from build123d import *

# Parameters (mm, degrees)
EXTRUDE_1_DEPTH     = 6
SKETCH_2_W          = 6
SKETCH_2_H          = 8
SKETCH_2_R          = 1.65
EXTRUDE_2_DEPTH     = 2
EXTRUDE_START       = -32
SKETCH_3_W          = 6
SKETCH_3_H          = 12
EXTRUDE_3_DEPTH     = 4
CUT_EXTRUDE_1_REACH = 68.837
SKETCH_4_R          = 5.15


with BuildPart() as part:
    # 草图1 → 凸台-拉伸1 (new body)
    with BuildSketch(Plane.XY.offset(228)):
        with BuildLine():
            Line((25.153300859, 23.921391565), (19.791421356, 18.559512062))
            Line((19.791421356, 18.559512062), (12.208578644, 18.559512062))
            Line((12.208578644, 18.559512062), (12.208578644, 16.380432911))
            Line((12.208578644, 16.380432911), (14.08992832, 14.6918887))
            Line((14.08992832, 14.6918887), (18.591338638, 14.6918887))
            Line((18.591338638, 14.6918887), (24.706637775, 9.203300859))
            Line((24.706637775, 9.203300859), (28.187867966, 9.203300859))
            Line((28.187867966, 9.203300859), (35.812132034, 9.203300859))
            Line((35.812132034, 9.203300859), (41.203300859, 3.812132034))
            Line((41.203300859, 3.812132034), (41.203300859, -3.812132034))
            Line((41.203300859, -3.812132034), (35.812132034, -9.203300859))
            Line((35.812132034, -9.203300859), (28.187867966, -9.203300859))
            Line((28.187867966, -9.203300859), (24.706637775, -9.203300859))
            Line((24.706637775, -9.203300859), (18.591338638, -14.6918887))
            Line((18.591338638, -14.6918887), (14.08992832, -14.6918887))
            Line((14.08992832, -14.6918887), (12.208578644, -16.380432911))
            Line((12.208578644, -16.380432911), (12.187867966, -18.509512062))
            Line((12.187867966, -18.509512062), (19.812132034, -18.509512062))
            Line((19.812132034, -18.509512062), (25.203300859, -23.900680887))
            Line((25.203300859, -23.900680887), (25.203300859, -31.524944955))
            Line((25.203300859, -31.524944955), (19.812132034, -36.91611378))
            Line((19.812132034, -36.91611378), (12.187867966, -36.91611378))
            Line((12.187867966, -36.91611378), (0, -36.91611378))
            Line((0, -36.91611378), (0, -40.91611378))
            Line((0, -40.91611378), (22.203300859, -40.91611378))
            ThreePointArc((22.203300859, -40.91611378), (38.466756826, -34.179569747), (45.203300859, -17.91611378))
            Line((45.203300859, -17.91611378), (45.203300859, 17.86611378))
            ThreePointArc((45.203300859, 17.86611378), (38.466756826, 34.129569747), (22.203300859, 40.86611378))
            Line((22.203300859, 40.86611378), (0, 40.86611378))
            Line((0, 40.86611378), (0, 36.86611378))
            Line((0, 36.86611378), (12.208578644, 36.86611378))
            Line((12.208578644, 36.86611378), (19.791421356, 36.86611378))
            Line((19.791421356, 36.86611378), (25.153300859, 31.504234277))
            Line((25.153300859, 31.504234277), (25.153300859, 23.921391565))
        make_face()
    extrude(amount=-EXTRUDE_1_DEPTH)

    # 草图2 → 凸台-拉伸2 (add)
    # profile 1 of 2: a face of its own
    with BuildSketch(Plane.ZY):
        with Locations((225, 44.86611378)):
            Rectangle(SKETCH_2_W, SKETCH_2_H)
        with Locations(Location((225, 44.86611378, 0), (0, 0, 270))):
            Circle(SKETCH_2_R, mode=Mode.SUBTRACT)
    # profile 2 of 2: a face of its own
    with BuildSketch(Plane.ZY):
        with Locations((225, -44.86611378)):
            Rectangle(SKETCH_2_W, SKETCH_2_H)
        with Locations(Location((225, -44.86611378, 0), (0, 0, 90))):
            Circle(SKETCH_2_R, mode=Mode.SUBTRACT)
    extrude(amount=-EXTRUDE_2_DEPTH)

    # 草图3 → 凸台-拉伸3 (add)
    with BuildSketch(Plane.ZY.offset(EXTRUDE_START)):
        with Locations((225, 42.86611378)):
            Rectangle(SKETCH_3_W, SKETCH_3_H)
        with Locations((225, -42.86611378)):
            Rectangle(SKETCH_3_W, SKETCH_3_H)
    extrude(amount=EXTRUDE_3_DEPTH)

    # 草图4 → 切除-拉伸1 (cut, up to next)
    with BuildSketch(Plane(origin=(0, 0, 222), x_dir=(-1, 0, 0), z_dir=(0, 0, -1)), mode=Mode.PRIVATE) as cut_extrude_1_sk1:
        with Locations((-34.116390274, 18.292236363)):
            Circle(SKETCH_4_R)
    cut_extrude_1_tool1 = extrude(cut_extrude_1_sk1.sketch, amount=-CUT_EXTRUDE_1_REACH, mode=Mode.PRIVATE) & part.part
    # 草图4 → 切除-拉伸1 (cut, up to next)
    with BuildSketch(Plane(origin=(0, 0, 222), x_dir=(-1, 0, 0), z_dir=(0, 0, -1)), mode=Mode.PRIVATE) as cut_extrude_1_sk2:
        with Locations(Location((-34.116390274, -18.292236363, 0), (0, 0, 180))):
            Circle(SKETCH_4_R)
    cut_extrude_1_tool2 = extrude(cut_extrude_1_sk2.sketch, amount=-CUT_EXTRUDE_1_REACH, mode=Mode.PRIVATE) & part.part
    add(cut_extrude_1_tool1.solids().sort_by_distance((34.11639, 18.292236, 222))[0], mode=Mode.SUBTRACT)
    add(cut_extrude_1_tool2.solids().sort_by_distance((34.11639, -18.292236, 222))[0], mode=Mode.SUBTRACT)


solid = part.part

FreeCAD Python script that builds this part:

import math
import FreeCAD as App
import Part
import Sketcher

V = App.Vector

doc = App.newDocument("Part")
body = doc.addObject("PartDesign::Body", "Body")

sketch1 = body.newObject("Sketcher::SketchObject", "Sketch")
sketch1.AttachmentSupport = (doc.getObject("XY_Plane"), [""])
sketch1.MapMode = "FlatFace"
sketch1.AttachmentOffset = App.Placement(V(0, 0, 228), App.Rotation())
sketch1.addGeometry(Part.LineSegment(V(25.2, 23.9, 0), V(19.8, 18.6, 0)), False)
sketch1.addGeometry(Part.LineSegment(V(19.8, 18.6, 0), V(12.2, 18.6, 0)), False)
sketch1.addGeometry(Part.LineSegment(V(12.2, 18.6, 0), V(12.2, 16.4, 0)), False)
sketch1.addGeometry(Part.LineSegment(V(12.2, 16.4, 0), V(14.1, 14.7, 0)), False)
sketch1.addGeometry(Part.LineSegment(V(14.1, 14.7, 0), V(18.6, 14.7, 0)), False)
sketch1.addGeometry(Part.LineSegment(V(18.6, 14.7, 0), V(24.7, 9.2, 0)), False)
sketch1.addGeometry(Part.LineSegment(V(24.7, 9.2, 0), V(35.8, 9.2, 0)), False)
sketch1.addGeometry(Part.LineSegment(V(35.8, 9.2, 0), V(41.2, 3.8, 0)), False)
sketch1.addGeometry(Part.LineSegment(V(41.2, 3.8, 0), V(41.2, -3.8, 0)), False)
sketch1.addGeometry(Part.LineSegment(V(41.2, -3.8, 0), V(35.8, -9.2, 0)), False)
sketch1.addGeometry(Part.LineSegment(V(35.8, -9.2, 0), V(24.7, -9.2, 0)), False)
sketch1.addGeometry(Part.LineSegment(V(24.7, -9.2, 0), V(18.6, -14.7, 0)), False)
sketch1.addGeometry(Part.LineSegment(V(18.6, -14.7, 0), V(14.1, -14.7, 0)), False)
sketch1.addGeometry(Part.LineSegment(V(14.1, -14.7, 0), V(12.2, -16.4, 0)), False)
sketch1.addGeometry(Part.LineSegment(V(12.2, -16.4, 0), V(12.2, -18.5, 0)), False)
sketch1.addGeometry(Part.LineSegment(V(12.2, -18.5, 0), V(19.8, -18.5, 0)), False)
sketch1.addGeometry(Part.LineSegment(V(19.8, -18.5, 0), V(25.2, -23.9, 0)), False)
sketch1.addGeometry(Part.LineSegment(V(25.2, -23.9, 0), V(25.2, -31.5, 0)), False)
sketch1.addGeometry(Part.LineSegment(V(25.2, -31.5, 0), V(19.8, -36.9, 0)), False)
sketch1.addGeometry(Part.LineSegment(V(19.8, -36.9, 0), V(0, -36.9, 0)), False)
sketch1.addGeometry(Part.LineSegment(V(0, -36.9, 0), V(0, -40.9, 0)), False)
sketch1.addGeometry(Part.LineSegment(V(0, -40.9, 0), V(22.2, -40.9, 0)), False)
sketch1.addGeometry(Part.ArcOfCircle(Part.Circle(V(22.2, -17.9, 0), V(0, 0, 1), 23), math.radians(-90), math.radians(0)), False)
sketch1.addGeometry(Part.LineSegment(V(45.2, -17.9, 0), V(45.2, 17.9, 0)), False)
sketch1.addGeometry(Part.ArcOfCircle(Part.Circle(V(22.2, 17.9, 0), V(0, 0, 1), 23), math.radians(0), math.radians(90)), False)
sketch1.addGeometry(Part.LineSegment(V(22.2, 40.9, 0), V(0, 40.9, 0)), False)
sketch1.addGeometry(Part.LineSegment(V(0, 40.9, 0), V(0, 36.9, 0)), False)
sketch1.addGeometry(Part.LineSegment(V(0, 36.9, 0), V(19.8, 36.9, 0)), False)
sketch1.addGeometry(Part.LineSegment(V(19.8, 36.9, 0), V(25.2, 31.5, 0)), False)
sketch1.addGeometry(Part.LineSegment(V(25.2, 31.5, 0), V(25.2, 23.9, 0)), False)
sketch1.addConstraint(Sketcher.Constraint("Coincident", 0, 2, 1, 1))
sketch1.addConstraint(Sketcher.Constraint("Coincident", 1, 2, 2, 1))
sketch1.addConstraint(Sketcher.Constraint("Coincident", 2, 2, 3, 1))
sketch1.addConstraint(Sketcher.Constraint("Coincident", 3, 2, 4, 1))
sketch1.addConstraint(Sketcher.Constraint("Coincident", 4, 2, 5, 1))
sketch1.addConstraint(Sketcher.Constraint("Coincident", 5, 2, 6, 1))
sketch1.addConstraint(Sketcher.Constraint("Coincident", 6, 2, 7, 1))
sketch1.addConstraint(Sketcher.Constraint("Coincident", 7, 2, 8, 1))
sketch1.addConstraint(Sketcher.Constraint("Coincident", 8, 2, 9, 1))
sketch1.addConstraint(Sketcher.Constraint("Coincident", 9, 2, 10, 1))
sketch1.addConstraint(Sketcher.Constraint("Coincident", 10, 2, 11, 1))
sketch1.addConstraint(Sketcher.Constraint("Coincident", 11, 2, 12, 1))
sketch1.addConstraint(Sketcher.Constraint("Coincident", 12, 2, 13, 1))
sketch1.addConstraint(Sketcher.Constraint("Coincident", 13, 2, 14, 1))
sketch1.addConstraint(Sketcher.Constraint("Coincident", 14, 2, 15, 1))
sketch1.addConstraint(Sketcher.Constraint("Coincident", 15, 2, 16, 1))
sketch1.addConstraint(Sketcher.Constraint("Coincident", 16, 2, 17, 1))
sketch1.addConstraint(Sketcher.Constraint("Coincident", 17, 2, 18, 1))
sketch1.addConstraint(Sketcher.Constraint("Coincident", 18, 2, 19, 1))
sketch1.addConstraint(Sketcher.Constraint("Coincident", 19, 2, 20, 1))
sketch1.addConstraint(Sketcher.Constraint("Coincident", 20, 2, 21, 1))
sketch1.addConstraint(Sketcher.Constraint("Tangent", 21, 2, 22, 1))
sketch1.addConstraint(Sketcher.Constraint("Tangent", 22, 2, 23, 1))
sketch1.addConstraint(Sketcher.Constraint("Tangent", 23, 2, 24, 1))
sketch1.addConstraint(Sketcher.Constraint("Tangent", 24, 2, 25, 1))
sketch1.addConstraint(Sketcher.Constraint("Coincident", 25, 2, 26, 1))
sketch1.addConstraint(Sketcher.Constraint("Coincident", 26, 2, 27, 1))
sketch1.addConstraint(Sketcher.Constraint("Coincident", 27, 2, 28, 1))
sketch1.addConstraint(Sketcher.Constraint("Coincident", 28, 2, 29, 1))
sketch1.addConstraint(Sketcher.Constraint("Coincident", 29, 2, 0, 1))
sketch1.addConstraint(Sketcher.Constraint("Horizontal", 1))
sketch1.addConstraint(Sketcher.Constraint("Vertical", 2))
sketch1.addConstraint(Sketcher.Constraint("Horizontal", 4))
sketch1.addConstraint(Sketcher.Constraint("Horizontal", 6))
sketch1.addConstraint(Sketcher.Constraint("Vertical", 8))
sketch1.addConstraint(Sketcher.Constraint("Horizontal", 10))
sketch1.addConstraint(Sketcher.Constraint("Horizontal", 12))
sketch1.addConstraint(Sketcher.Constraint("Horizontal", 15))
sketch1.addConstraint(Sketcher.Constraint("Vertical", 17))
sketch1.addConstraint(Sketcher.Constraint("Horizontal", 19))
sketch1.addConstraint(Sketcher.Constraint("Vertical", 20))
sketch1.addConstraint(Sketcher.Constraint("Horizontal", 21))
sketch1.addConstraint(Sketcher.Constraint("Vertical", 23))
sketch1.addConstraint(Sketcher.Constraint("Horizontal", 25))
sketch1.addConstraint(Sketcher.Constraint("Vertical", 26))
sketch1.addConstraint(Sketcher.Constraint("Horizontal", 27))
sketch1.addConstraint(Sketcher.Constraint("Vertical", 29))
sketch1.addConstraint(Sketcher.Constraint("Equal", 22, 24))
sketch1.addConstraint(Sketcher.Constraint("Symmetric", 6, 2, 9, 2, -1))
sketch1.addConstraint(Sketcher.Constraint("Symmetric", 4, 2, 11, 2, -1))
sketch1.addConstraint(Sketcher.Constraint("Symmetric", 2, 2, 13, 2, -1))
sketch1.addConstraint(Sketcher.Constraint("PointOnObject", 19, 2, -2))
sketch1.addConstraint(Sketcher.Constraint("PointOnObject", 25, 2, -2))
sketch1.addConstraint(Sketcher.Constraint("Parallel", 3, 5))
sketch1.addConstraint(Sketcher.Constraint("Perpendicular", 0, 7))
sketch1.addConstraint(Sketcher.Constraint("Perpendicular", 7, 9))
sketch1.addConstraint(Sketcher.Constraint("Parallel", 11, 13))
sketch1.addConstraint(Sketcher.Constraint("Perpendicular", 9, 16))
sketch1.addConstraint(Sketcher.Constraint("Perpendicular", 16, 18))
sketch1.addConstraint(Sketcher.Constraint("Perpendicular", 18, 28))
sketch1.addConstraint(Sketcher.Constraint("Vertical", 5, 2, 10, 2))
sketch1.addConstraint(Sketcher.Constraint("Vertical", 15, 2, 18, 2))
sketch1.addConstraint(Sketcher.Constraint("Vertical", 0, 2, 27, 2))
sketch1.addConstraint(Sketcher.Constraint("Equal", 15, 8))
sketch1.addConstraint(Sketcher.Constraint("Equal", 8, 17))
sketch1.addConstraint(Sketcher.Constraint("Equal", 20, 26))
sketch1.addConstraint(Sketcher.Constraint("Equal", 1, 29))
sketch1.addConstraint(Sketcher.Constraint("Equal", 7, 9))
sketch1.addConstraint(Sketcher.Constraint("Equal", 9, 16))
sketch1.addConstraint(Sketcher.Constraint("Radius", 22, 23.0))
sketch1.addConstraint(Sketcher.Constraint("DistanceY", 20, 2, 20, 1, 4.0))
sketch1.addConstraint(Sketcher.Constraint("DistanceX", 24, 3, 7, 2, 19.0))
sketch1.addConstraint(Sketcher.Constraint("DistanceX", 22, 3, 16, 2, 3.0))
sketch1.addConstraint(Sketcher.Constraint("DistanceX", 24, 2, 28, 2, 2.95))
sketch1.addConstraint(Sketcher.Constraint("DistanceX", 21, 1, 21, 2, 22.203301))
sketch1.addConstraint(Sketcher.Constraint("DistanceX", 4, 1, 4, 2, 4.50141))
sketch1.addConstraint(Sketcher.Constraint("DistanceX", 27, 1, 27, 2, 19.791421))
sketch1.addConstraint(Sketcher.Constraint("DistanceY", 2, 2, 2, 1, 2.179079))
sketch1.addConstraint(Sketcher.Constraint("DistanceY", -1, 1, 5, 2, 9.203301))
sketch1.addConstraint(Sketcher.Constraint("DistanceY", 24, 3, 0, 2, 0.693398))
sketch1.addConstraint(Sketcher.Constraint("DistanceX", 4, 2, 5, 2, 6.115299))
sketch1.addConstraint(Sketcher.Constraint("Distance", 14, 2.12918))
sketch1.addConstraint(Sketcher.Constraint("DistanceX", 6, 1, 6, 2, 11.105494))
sketch1.addConstraint(Sketcher.Constraint("DistanceX", 15, 1, 15, 2, 7.624264))
sketch1.addConstraint(Sketcher.Constraint("DistanceY", 23, 1, 23, 2, 35.782228))
pad1 = body.newObject("PartDesign::Pad", "Pad")
pad1.Profile = sketch1
pad1.Length = 6
pad1.Reversed = True

sketch2 = body.newObject("Sketcher::SketchObject", "Sketch001")
sketch2.AttachmentSupport = (doc.getObject("YZ_Plane"), [""])
sketch2.MapMode = "FlatFace"
sketch2.addGeometry(Part.LineSegment(V(48.9, 222, 0), V(40.9, 222, 0)), False)
sketch2.addGeometry(Part.LineSegment(V(40.9, 222, 0), V(40.9, 228, 0)), False)
sketch2.addGeometry(Part.LineSegment(V(40.9, 228, 0), V(48.9, 228, 0)), False)
sketch2.addGeometry(Part.LineSegment(V(48.9, 228, 0), V(48.9, 222, 0)), False)
sketch2.addGeometry(Part.Circle(V(44.9, 225, 0), V(0, 0, 1), 1.6), False)
sketch2.addGeometry(Part.LineSegment(V(-40.9, 222, 0), V(-48.9, 222, 0)), False)
sketch2.addGeometry(Part.LineSegment(V(-48.9, 222, 0), V(-48.9, 228, 0)), False)
sketch2.addGeometry(Part.LineSegment(V(-48.9, 228, 0), V(-40.9, 228, 0)), False)
sketch2.addGeometry(Part.LineSegment(V(-40.9, 228, 0), V(-40.9, 222, 0)), False)
sketch2.addGeometry(Part.Circle(V(-44.9, 225, 0), V(0, 0, 1), 1.6), False)
sketch2.addConstraint(Sketcher.Constraint("Coincident", 0, 2, 1, 1))
sketch2.addConstraint(Sketcher.Constraint("Coincident", 1, 2, 2, 1))
sketch2.addConstraint(Sketcher.Constraint("Coincident", 2, 2, 3, 1))
sketch2.addConstraint(Sketcher.Constraint("Coincident", 3, 2, 0, 1))
sketch2.addConstraint(Sketcher.Constraint("Coincident", 5, 2, 6, 1))
sketch2.addConstraint(Sketcher.Constraint("Coincident", 6, 2, 7, 1))
sketch2.addConstraint(Sketcher.Constraint("Coincident", 7, 2, 8, 1))
sketch2.addConstraint(Sketcher.Constraint("Coincident", 8, 2, 5, 1))
sketch2.addConstraint(Sketcher.Constraint("Horizontal", 0))
sketch2.addConstraint(Sketcher.Constraint("Vertical", 1))
sketch2.addConstraint(Sketcher.Constraint("Horizontal", 2))
sketch2.addConstraint(Sketcher.Constraint("Vertical", 3))
sketch2.addConstraint(Sketcher.Constraint("Horizontal", 5))
sketch2.addConstraint(Sketcher.Constraint("Vertical", 6))
sketch2.addConstraint(Sketcher.Constraint("Horizontal", 7))
sketch2.addConstraint(Sketcher.Constraint("Vertical", 8))
sketch2.addConstraint(Sketcher.Constraint("Equal", 4, 9))
sketch2.addConstraint(Sketcher.Constraint("Symmetric", 4, 3, 9, 3, -2))
sketch2.addConstraint(Sketcher.Constraint("Symmetric", 3, 2, 5, 2, -2))
sketch2.addConstraint(Sketcher.Constraint("Symmetric", 1, 2, 7, 2, -2))
sketch2.addConstraint(Sketcher.Constraint("Diameter", 4, 3.3))
sketch2.addConstraint(Sketcher.Constraint("DistanceX", 0, 2, 0, 1, 8.0))
sketch2.addConstraint(Sketcher.Constraint("DistanceY", 1, 1, 1, 2, 6.0))
sketch2.addConstraint(Sketcher.Constraint("DistanceY", -1, 1, 4, 3, 225.0))
sketch2.addConstraint(Sketcher.Constraint("DistanceY", -1, 1, 0, 2, 222.0))
sketch2.addConstraint(Sketcher.Constraint("DistanceX", 0, 2, 4, 3, 4.0))
sketch2.addConstraint(Sketcher.Constraint("DistanceX", -1, 1, 4, 3, 44.866114))
pad2 = body.newObject("PartDesign::Pad", "Pad001")
pad2.Profile = sketch2
pad2.Length = 2

sketch3 = body.newObject("Sketcher::SketchObject", "Sketch002")
sketch3.AttachmentSupport = (doc.getObject("YZ_Plane"), [""])
sketch3.MapMode = "FlatFace"
sketch3.AttachmentOffset = App.Placement(V(0, 0, 32), App.Rotation())
sketch3.addGeometry(Part.LineSegment(V(49, 222, 0), V(37, 222, 0)), False)
sketch3.addGeometry(Part.LineSegment(V(37, 222, 0), V(37, 228, 0)), False)
sketch3.addGeometry(Part.LineSegment(V(37, 228, 0), V(49, 228, 0)), False)
sketch3.addGeometry(Part.LineSegment(V(49, 228, 0), V(49, 222, 0)), False)
sketch3.addGeometry(Part.LineSegment(V(-37, 222, 0), V(-49, 222, 0)), False)
sketch3.addGeometry(Part.LineSegment(V(-49, 222, 0), V(-49, 228, 0)), False)
sketch3.addGeometry(Part.LineSegment(V(-49, 228, 0), V(-37, 228, 0)), False)
sketch3.addGeometry(Part.LineSegment(V(-37, 228, 0), V(-37, 222, 0)), False)
sketch3.addConstraint(Sketcher.Constraint("Coincident", 0, 2, 1, 1))
sketch3.addConstraint(Sketcher.Constraint("Coincident", 1, 2, 2, 1))
sketch3.addConstraint(Sketcher.Constraint("Coincident", 2, 2, 3, 1))
sketch3.addConstraint(Sketcher.Constraint("Coincident", 3, 2, 0, 1))
sketch3.addConstraint(Sketcher.Constraint("Coincident", 4, 2, 5, 1))
sketch3.addConstraint(Sketcher.Constraint("Coincident", 5, 2, 6, 1))
sketch3.addConstraint(Sketcher.Constraint("Coincident", 6, 2, 7, 1))
sketch3.addConstraint(Sketcher.Constraint("Coincident", 7, 2, 4, 1))
sketch3.addConstraint(Sketcher.Constraint("Horizontal", 0))
sketch3.addConstraint(Sketcher.Constraint("Vertical", 1))
sketch3.addConstraint(Sketcher.Constraint("Horizontal", 2))
sketch3.addConstraint(Sketcher.Constraint("Vertical", 3))
sketch3.addConstraint(Sketcher.Constraint("Horizontal", 4))
sketch3.addConstraint(Sketcher.Constraint("Vertical", 5))
sketch3.addConstraint(Sketcher.Constraint("Horizontal", 6))
sketch3.addConstraint(Sketcher.Constraint("Vertical", 7))
sketch3.addConstraint(Sketcher.Constraint("Symmetric", 3, 2, 4, 2, -2))
sketch3.addConstraint(Sketcher.Constraint("Symmetric", 1, 2, 6, 2, -2))
sketch3.addConstraint(Sketcher.Constraint("DistanceX", 0, 2, 0, 1, 12.0))
sketch3.addConstraint(Sketcher.Constraint("DistanceY", 1, 1, 1, 2, 6.0))
sketch3.addConstraint(Sketcher.Constraint("DistanceY", -1, 1, 0, 2, 222.0))
sketch3.addConstraint(Sketcher.Constraint("DistanceX", -1, 1, 0, 2, 36.866114))
pad3 = body.newObject("PartDesign::Pad", "Pad002")
pad3.Profile = sketch3
pad3.Length = 4
pad3.Reversed = True

sketch4 = body.newObject("Sketcher::SketchObject", "Sketch003")
sketch4.AttachmentSupport = (doc.getObject("XY_Plane"), [""])
sketch4.MapMode = "FlatFace"
sketch4.AttachmentOffset = App.Placement(V(0, 0, 222), App.Rotation())
sketch4.addGeometry(Part.Circle(V(34, 18, 0), V(0, 0, 1), 5), False)
sketch4.addConstraint(Sketcher.Constraint("Diameter", 0, 10.3))
sketch4.addConstraint(Sketcher.Constraint("DistanceX", -1, 1, 0, 3, 34.11639))
sketch4.addConstraint(Sketcher.Constraint("DistanceY", -1, 1, 0, 3, 18.292236))
pocket1 = body.newObject("PartDesign::Pocket", "Pocket")
pocket1.Profile = sketch4
pocket1.Type = "UpToFirst"
pocket1.Reversed = True

sketch5 = body.newObject("Sketcher::SketchObject", "Sketch004")
sketch5.AttachmentSupport = (doc.getObject("XY_Plane"), [""])
sketch5.MapMode = "FlatFace"
sketch5.AttachmentOffset = App.Placement(V(0, 0, 222), App.Rotation())
sketch5.addGeometry(Part.Circle(V(34, -18, 0), V(0, 0, 1), 5), False)
sketch5.addConstraint(Sketcher.Constraint("Diameter", 0, 10.3))
sketch5.addConstraint(Sketcher.Constraint("DistanceX", -1, 1, 0, 3, 34.11639))
sketch5.addConstraint(Sketcher.Constraint("DistanceY", 0, 3, -1, 1, 18.292236))
pocket2 = body.newObject("PartDesign::Pocket", "Pocket001")
pocket2.Profile = sketch5
pocket2.Type = "UpToFirst"
pocket2.Reversed = True

doc.recompute()
